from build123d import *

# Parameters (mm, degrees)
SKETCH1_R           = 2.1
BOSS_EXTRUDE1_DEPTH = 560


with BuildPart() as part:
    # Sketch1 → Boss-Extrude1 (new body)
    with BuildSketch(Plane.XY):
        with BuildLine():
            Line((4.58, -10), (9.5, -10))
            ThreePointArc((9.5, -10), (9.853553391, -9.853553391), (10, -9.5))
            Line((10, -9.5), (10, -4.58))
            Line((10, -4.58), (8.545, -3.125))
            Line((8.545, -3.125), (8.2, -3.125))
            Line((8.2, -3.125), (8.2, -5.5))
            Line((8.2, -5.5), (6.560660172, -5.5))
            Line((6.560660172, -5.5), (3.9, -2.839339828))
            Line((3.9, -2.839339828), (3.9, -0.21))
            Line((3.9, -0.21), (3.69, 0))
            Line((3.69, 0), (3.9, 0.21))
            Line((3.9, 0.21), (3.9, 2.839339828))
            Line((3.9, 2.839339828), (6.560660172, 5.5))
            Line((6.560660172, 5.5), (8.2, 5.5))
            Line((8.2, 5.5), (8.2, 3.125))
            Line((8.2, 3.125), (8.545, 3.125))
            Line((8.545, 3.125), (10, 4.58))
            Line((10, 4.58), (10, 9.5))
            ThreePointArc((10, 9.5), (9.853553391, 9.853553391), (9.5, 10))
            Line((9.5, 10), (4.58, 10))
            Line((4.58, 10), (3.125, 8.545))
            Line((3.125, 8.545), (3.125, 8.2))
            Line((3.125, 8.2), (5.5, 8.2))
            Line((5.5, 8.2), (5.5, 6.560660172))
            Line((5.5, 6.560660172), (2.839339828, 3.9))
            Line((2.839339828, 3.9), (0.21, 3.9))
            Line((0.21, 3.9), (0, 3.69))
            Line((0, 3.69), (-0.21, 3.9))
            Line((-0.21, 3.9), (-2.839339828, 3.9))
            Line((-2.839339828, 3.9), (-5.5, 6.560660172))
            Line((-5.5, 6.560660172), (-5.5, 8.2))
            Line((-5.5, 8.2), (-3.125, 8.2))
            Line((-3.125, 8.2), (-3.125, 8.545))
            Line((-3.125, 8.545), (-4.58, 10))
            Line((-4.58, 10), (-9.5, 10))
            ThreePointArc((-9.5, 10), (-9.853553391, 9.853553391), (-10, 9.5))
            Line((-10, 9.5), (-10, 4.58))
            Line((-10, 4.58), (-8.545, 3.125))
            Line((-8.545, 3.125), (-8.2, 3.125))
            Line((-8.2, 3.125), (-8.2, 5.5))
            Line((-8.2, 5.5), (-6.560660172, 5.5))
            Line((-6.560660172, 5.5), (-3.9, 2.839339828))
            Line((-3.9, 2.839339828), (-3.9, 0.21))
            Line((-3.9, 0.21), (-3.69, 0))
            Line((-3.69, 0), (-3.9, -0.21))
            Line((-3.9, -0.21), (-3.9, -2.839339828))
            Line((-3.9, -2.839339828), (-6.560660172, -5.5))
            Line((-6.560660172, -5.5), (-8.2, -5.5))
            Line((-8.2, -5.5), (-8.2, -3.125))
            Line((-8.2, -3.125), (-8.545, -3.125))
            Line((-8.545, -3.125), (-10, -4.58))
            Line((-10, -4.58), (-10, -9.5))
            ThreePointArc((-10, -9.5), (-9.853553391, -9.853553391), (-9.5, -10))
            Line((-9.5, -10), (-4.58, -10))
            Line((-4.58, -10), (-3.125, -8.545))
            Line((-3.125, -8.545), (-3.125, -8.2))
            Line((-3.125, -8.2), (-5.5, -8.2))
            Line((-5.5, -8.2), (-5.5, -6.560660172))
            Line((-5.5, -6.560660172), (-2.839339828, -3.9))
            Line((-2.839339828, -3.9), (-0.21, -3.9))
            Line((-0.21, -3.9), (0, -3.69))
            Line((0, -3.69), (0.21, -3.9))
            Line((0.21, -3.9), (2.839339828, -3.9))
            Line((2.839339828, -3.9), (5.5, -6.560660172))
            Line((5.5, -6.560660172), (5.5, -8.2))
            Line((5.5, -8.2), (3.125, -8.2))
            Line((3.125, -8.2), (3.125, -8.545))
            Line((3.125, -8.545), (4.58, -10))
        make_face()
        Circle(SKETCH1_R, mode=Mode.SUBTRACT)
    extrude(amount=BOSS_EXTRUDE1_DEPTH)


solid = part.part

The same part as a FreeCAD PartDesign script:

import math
import FreeCAD as App
import Part
import Sketcher
from FreeCAD import Vector
Q = App.Units.Quantity

doc = App.newDocument("Part")
body = doc.addObject("PartDesign::Body", "Body")

# Sketch on XY plane
sketch1 = body.newObject("Sketcher::SketchObject", "Sketch")
sketch1.AttachmentSupport = (doc.getObject("XY_Plane"), [""])
sketch1.MapMode = "FlatFace"
sketch1.addGeometry([
    Part.LineSegment(Vector(4.58, -10, 0), Vector(9.5, -10, 0)),  # 0
    Part.ArcOfCircle(Part.Circle(Vector(9.5, -9.5, 0), Vector(0, 0, 1), 0.5), math.radians(-90), math.radians(0)),  # 1
    Part.LineSegment(Vector(10, -9.5, 0), Vector(10, -4.58, 0)),  # 2
    Part.LineSegment(Vector(10, -4.58, 0), Vector(8.54, -3.12, 0)),  # 3
    Part.LineSegment(Vector(8.54, -3.12, 0), Vector(8.2, -3.12, 0)),  # 4
    Part.LineSegment(Vector(8.2, -3.12, 0), Vector(8.2, -5.5, 0)),  # 5
    Part.LineSegment(Vector(8.2, -5.5, 0), Vector(6.56, -5.5, 0)),  # 6
    Part.LineSegment(Vector(6.56, -5.5, 0), Vector(3.9, -2.84, 0)),  # 7
    Part.LineSegment(Vector(3.9, -2.84, 0), Vector(3.9, -0.21, 0)),  # 8
    Part.LineSegment(Vector(3.9, -0.21, 0), Vector(3.69, 0, 0)),  # 9
    Part.LineSegment(Vector(3.69, 0, 0), Vector(3.9, 0.21, 0)),  # 10
    Part.LineSegment(Vector(3.9, 0.21, 0), Vector(3.9, 2.84, 0)),  # 11
    Part.LineSegment(Vector(3.9, 2.84, 0), Vector(6.56, 5.5, 0)),  # 12
    Part.LineSegment(Vector(6.56, 5.5, 0), Vector(8.2, 5.5, 0)),  # 13
    Part.LineSegment(Vector(8.2, 5.5, 0), Vector(8.2, 3.12, 0)),  # 14
    Part.LineSegment(Vector(8.2, 3.12, 0), Vector(8.54, 3.12, 0)),  # 15
    Part.LineSegment(Vector(8.54, 3.12, 0), Vector(10, 4.58, 0)),  # 16
    Part.LineSegment(Vector(10, 4.58, 0), Vector(10, 9.5, 0)),  # 17
    Part.ArcOfCircle(Part.Circle(Vector(9.5, 9.5, 0), Vector(0, 0, 1), 0.5), math.radians(0), math.radians(90)),  # 18
    Part.LineSegment(Vector(9.5, 10, 0), Vector(4.58, 10, 0)),  # 19
    Part.LineSegment(Vector(4.58, 10, 0), Vector(3.12, 8.54, 0)),  # 20
    Part.LineSegment(Vector(3.12, 8.54, 0), Vector(3.12, 8.2, 0)),  # 21
    Part.LineSegment(Vector(3.12, 8.2, 0), Vector(5.5, 8.2, 0)),  # 22
    Part.LineSegment(Vector(5.5, 8.2, 0), Vector(5.5, 6.56, 0)),  # 23
    Part.LineSegment(Vector(5.5, 6.56, 0), Vector(2.84, 3.9, 0)),  # 24
    Part.LineSegment(Vector(2.84, 3.9, 0), Vector(0.21, 3.9, 0)),  # 25
    Part.LineSegment(Vector(0.21, 3.9, 0), Vector(0, 3.69, 0)),  # 26
    Part.LineSegment(Vector(0, 3.69, 0), Vector(-0.21, 3.9, 0)),  # 27
    Part.LineSegment(Vector(-0.21, 3.9, 0), Vector(-2.84, 3.9, 0)),  # 28
    Part.LineSegment(Vector(-2.84, 3.9, 0), Vector(-5.5, 6.56, 0)),  # 29
    Part.LineSegment(Vector(-5.5, 6.56, 0), Vector(-5.5, 8.2, 0)),  # 30
    Part.LineSegment(Vector(-5.5, 8.2, 0), Vector(-3.12, 8.2, 0)),  # 31
    Part.LineSegment(Vector(-3.12, 8.2, 0), Vector(-3.12, 8.54, 0)),  # 32
    Part.LineSegment(Vector(-3.12, 8.54, 0), Vector(-4.58, 10, 0)),  # 33
    Part.LineSegment(Vector(-4.58, 10, 0), Vector(-9.5, 10, 0)),  # 34
    Part.ArcOfCircle(Part.Circle(Vector(-9.5, 9.5, 0), Vector(0, 0, 1), 0.5), math.radians(90), math.radians(180)),  # 35
    Part.LineSegment(Vector(-10, 9.5, 0), Vector(-10, 4.58, 0)),  # 36
    Part.LineSegment(Vector(-10, 4.58, 0), Vector(-8.54, 3.12, 0)),  # 37
    Part.LineSegment(Vector(-8.54, 3.12, 0), Vector(-8.2, 3.12, 0)),  # 38
    Part.LineSegment(Vector(-8.2, 3.12, 0), Vector(-8.2, 5.5, 0)),  # 39
    Part.LineSegment(Vector(-8.2, 5.5, 0), Vector(-6.56, 5.5, 0)),  # 40
    Part.LineSegment(Vector(-6.56, 5.5, 0), Vector(-3.9, 2.84, 0)),  # 41
    Part.LineSegment(Vector(-3.9, 2.84, 0), Vector(-3.9, 0.21, 0)),  # 42
    Part.LineSegment(Vector(-3.9, 0.21, 0), Vector(-3.69, 0, 0)),  # 43
    Part.LineSegment(Vector(-3.69, 0, 0), Vector(-3.9, -0.21, 0)),  # 44
    Part.LineSegment(Vector(-3.9, -0.21, 0), Vector(-3.9, -2.84, 0)),  # 45
    Part.LineSegment(Vector(-3.9, -2.84, 0), Vector(-6.56, -5.5, 0)),  # 46
    Part.LineSegment(Vector(-6.56, -5.5, 0), Vector(-8.2, -5.5, 0)),  # 47
    Part.LineSegment(Vector(-8.2, -5.5, 0), Vector(-8.2, -3.12, 0)),  # 48
    Part.LineSegment(Vector(-8.2, -3.12, 0), Vector(-8.54, -3.12, 0)),  # 49
    Part.LineSegment(Vector(-8.54, -3.12, 0), Vector(-10, -4.58, 0)),  # 50
    Part.LineSegment(Vector(-10, -4.58, 0), Vector(-10, -9.5, 0)),  # 51
    Part.ArcOfCircle(Part.Circle(Vector(-9.5, -9.5, 0), Vector(0, 0, 1), 0.5), math.radians(180), math.radians(270)),  # 52
    Part.LineSegment(Vector(-9.5, -10, 0), Vector(-4.58, -10, 0)),  # 53
    Part.LineSegment(Vector(-4.58, -10, 0), Vector(-3.12, -8.54, 0)),  # 54
    Part.LineSegment(Vector(-3.12, -8.54, 0), Vector(-3.12, -8.2, 0)),  # 55
    Part.LineSegment(Vector(-3.12, -8.2, 0), Vector(-5.5, -8.2, 0)),  # 56
    Part.LineSegment(Vector(-5.5, -8.2, 0), Vector(-5.5, -6.56, 0)),  # 57
    Part.LineSegment(Vector(-5.5, -6.56, 0), Vector(-2.84, -3.9, 0)),  # 58
    Part.LineSegment(Vector(-2.84, -3.9, 0), Vector(-0.21, -3.9, 0)),  # 59
    Part.LineSegment(Vector(-0.21, -3.9, 0), Vector(0, -3.69, 0)),  # 60
    Part.LineSegment(Vector(0, -3.69, 0), Vector(0.21, -3.9, 0)),  # 61
    Part.LineSegment(Vector(0.21, -3.9, 0), Vector(2.84, -3.9, 0)),  # 62
    Part.LineSegment(Vector(2.84, -3.9, 0), Vector(5.5, -6.56, 0)),  # 63
    Part.LineSegment(Vector(5.5, -6.56, 0), Vector(5.5, -8.2, 0)),  # 64
    Part.LineSegment(Vector(5.5, -8.2, 0), Vector(3.12, -8.2, 0)),  # 65
    Part.LineSegment(Vector(3.12, -8.2, 0), Vector(3.12, -8.54, 0)),  # 66
    Part.LineSegment(Vector(3.12, -8.54, 0), Vector(4.58, -10, 0)),  # 67
    Part.Circle(Vector(0, 0, 0), Vector(0, 0, 1), 2.1),  # 68
], False)
sketch1.addConstraint([
    Sketcher.Constraint("Tangent", 0, 2, 1, 1),
    Sketcher.Constraint("Tangent", 1, 2, 2, 1),
    Sketcher.Constraint("Coincident", 2, 2, 3, 1),
    Sketcher.Constraint("Coincident", 3, 2, 4, 1),
    Sketcher.Constraint("Coincident", 4, 2, 5, 1),
    Sketcher.Constraint("Coincident", 5, 2, 6, 1),
    Sketcher.Constraint("Coincident", 6, 2, 7, 1),
    Sketcher.Constraint("Coincident", 7, 2, 8, 1),
    Sketcher.Constraint("Coincident", 8, 2, 9, 1),
    Sketcher.Constraint("Coincident", 9, 2, 10, 1),
    Sketcher.Constraint("Coincident", 10, 2, 11, 1),
    Sketcher.Constraint("Coincident", 11, 2, 12, 1),
    Sketcher.Constraint("Coincident", 12, 2, 13, 1),
    Sketcher.Constraint("Coincident", 13, 2, 14, 1),
    Sketcher.Constraint("Coincident", 14, 2, 15, 1),
    Sketcher.Constraint("Coincident", 15, 2, 16, 1),
    Sketcher.Constraint("Coincident", 16, 2, 17, 1),
    Sketcher.Constraint("Tangent", 17, 2, 18, 1),
    Sketcher.Constraint("Tangent", 18, 2, 19, 1),
    Sketcher.Constraint("Coincident", 19, 2, 20, 1),
    Sketcher.Constraint("Coincident", 20, 2, 21, 1),
    Sketcher.Constraint("Coincident", 21, 2, 22, 1),
    Sketcher.Constraint("Coincident", 22, 2, 23, 1),
    Sketcher.Constraint("Coincident", 23, 2, 24, 1),
    Sketcher.Constraint("Coincident", 24, 2, 25, 1),
    Sketcher.Constraint("Coincident", 25, 2, 26, 1),
    Sketcher.Constraint("Coincident", 26, 2, 27, 1),
    Sketcher.Constraint("Coincident", 27, 2, 28, 1),
    Sketcher.Constraint("Coincident", 28, 2, 29, 1),
    Sketcher.Constraint("Coincident", 29, 2, 30, 1),
    Sketcher.Constraint("Coincident", 30, 2, 31, 1),
    Sketcher.Constraint("Coincident", 31, 2, 32, 1),
    Sketcher.Constraint("Coincident", 32, 2, 33, 1),
    Sketcher.Constraint("Coincident", 33, 2, 34, 1),
    Sketcher.Constraint("Tangent", 34, 2, 35, 1),
    Sketcher.Constraint("Tangent", 35, 2, 36, 1),
    Sketcher.Constraint("Coincident", 36, 2, 37, 1),
    Sketcher.Constraint("Coincident", 37, 2, 38, 1),
    Sketcher.Constraint("Coincident", 38, 2, 39, 1),
    Sketcher.Constraint("Coincident", 39, 2, 40, 1),
    Sketcher.Constraint("Coincident", 40, 2, 41, 1),
    Sketcher.Constraint("Coincident", 41, 2, 42, 1),
    Sketcher.Constraint("Coincident", 42, 2, 43, 1),
    Sketcher.Constraint("Coincident", 43, 2, 44, 1),
    Sketcher.Constraint("Coincident", 44, 2, 45, 1),
    Sketcher.Constraint("Coincident", 45, 2, 46, 1),
    Sketcher.Constraint("Coincident", 46, 2, 47, 1),
    Sketcher.Constraint("Coincident", 47, 2, 48, 1),
    Sketcher.Constraint("Coincident", 48, 2, 49, 1),
    Sketcher.Constraint("Coincident", 49, 2, 50, 1),
    Sketcher.Constraint("Coincident", 50, 2, 51, 1),
    Sketcher.Constraint("Tangent", 51, 2, 52, 1),
    Sketcher.Constraint("Tangent", 52, 2, 53, 1),
    Sketcher.Constraint("Coincident", 53, 2, 54, 1),
    Sketcher.Constraint("Coincident", 54, 2, 55, 1),
    Sketcher.Constraint("Coincident", 55, 2, 56, 1),
    Sketcher.Constraint("Coincident", 56, 2, 57, 1),
    Sketcher.Constraint("Coincident", 57, 2, 58, 1),
    Sketcher.Constraint("Coincident", 58, 2, 59, 1),
    Sketcher.Constraint("Coincident", 59, 2, 60, 1),
    Sketcher.Constraint("Coincident", 60, 2, 61, 1),
    Sketcher.Constraint("Coincident", 61, 2, 62, 1),
    Sketcher.Constraint("Coincident", 62, 2, 63, 1),
    Sketcher.Constraint("Coincident", 63, 2, 64, 1),
    Sketcher.Constraint("Coincident", 64, 2, 65, 1),
    Sketcher.Constraint("Coincident", 65, 2, 66, 1),
    Sketcher.Constraint("Coincident", 66, 2, 67, 1),
    Sketcher.Constraint("Coincident", 67, 2, 0, 1),
    Sketcher.Constraint("Horizontal", 0),
    Sketcher.Constraint("Vertical", 2),
    Sketcher.Constraint("Horizontal", 4),
    Sketcher.Constraint("Vertical", 5),
    Sketcher.Constraint("Horizontal", 6),
    Sketcher.Constraint("Vertical", 8),
    Sketcher.Constraint("Vertical", 11),
    Sketcher.Constraint("Horizontal", 13),
    Sketcher.Constraint("Vertical", 14),
    Sketcher.Constraint("Horizontal", 15),
    Sketcher.Constraint("Vertical", 17),
    Sketcher.Constraint("Horizontal", 19),
    Sketcher.Constraint("Vertical", 21),
    Sketcher.Constraint("Horizontal", 22),
    Sketcher.Constraint("Vertical", 23),
    Sketcher.Constraint("Horizontal", 25),
    Sketcher.Constraint("Horizontal", 28),
    Sketcher.Constraint("Vertical", 30),
    Sketcher.Constraint("Horizontal", 31),
    Sketcher.Constraint("Vertical", 32),
    Sketcher.Constraint("Horizontal", 34),
    Sketcher.Constraint("Vertical", 36),
    Sketcher.Constraint("Horizontal", 38),
    Sketcher.Constraint("Vertical", 39),
    Sketcher.Constraint("Horizontal", 40),
    Sketcher.Constraint("Vertical", 42),
    Sketcher.Constraint("Vertical", 45),
    Sketcher.Constraint("Horizontal", 47),
    Sketcher.Constraint("Vertical", 48),
    Sketcher.Constraint("Horizontal", 49),
    Sketcher.Constraint("Vertical", 51),
    Sketcher.Constraint("Horizontal", 53),
    Sketcher.Constraint("Vertical", 55),
    Sketcher.Constraint("Horizontal", 56),
    Sketcher.Constraint("Vertical", 57),
    Sketcher.Constraint("Horizontal", 59),
    Sketcher.Constraint("Horizontal", 62),
    Sketcher.Constraint("Vertical", 64),
    Sketcher.Constraint("Horizontal", 65),
    Sketcher.Constraint("Vertical", 66),
    Sketcher.Constraint("Coincident", 68, 3, -1, 1),
    Sketcher.Constraint("Equal", 1, 18),
    Sketcher.Constraint("Equal", 18, 35),
    Sketcher.Constraint("Equal", 35, 52),
    Sketcher.Constraint("Symmetric", 1, 3, 35, 3, -1, 1),
    Sketcher.Constraint("Symmetric", 18, 3, 52, 3, -1, 1),
    Sketcher.Constraint("Symmetric", 3, 2, 37, 2, -1, 1),
    Sketcher.Constraint("Symmetric", 5, 2, 39, 2, -1, 1),
    Sketcher.Constraint("Symmetric", 7, 2, 41, 2, -1, 1),
    Sketcher.Constraint("Symmetric", 9, 2, 43, 2, -1, 1),
    Sketcher.Constraint("Symmetric", 10, 2, 44, 2, -1, 1),
    Sketcher.Constraint("Symmetric", 12, 2, 46, 2, -1, 1),
    Sketcher.Constraint("Symmetric", 14, 2, 48, 2, -1, 1),
    Sketcher.Constraint("Symmetric", 20, 2, 54, 2, -1, 1),
    Sketcher.Constraint("Symmetric", 22, 2, 56, 2, -1, 1),
    Sketcher.Constraint("Symmetric", 24, 2, 58, 2, -1, 1),
    Sketcher.Constraint("Symmetric", 26, 2, 60, 2, -1, 1),
    Sketcher.Constraint("Symmetric", 27, 2, 61, 2, -1, 1),
    Sketcher.Constraint("Symmetric", 29, 2, 63, 2, -1, 1),
    Sketcher.Constraint("Symmetric", 31, 2, 65, 2, -1, 1),
    Sketcher.Constraint("Symmetric", 18, 3, 35, 3, -2),
    Sketcher.Constraint("Symmetric", 25, 2, 27, 2, -2),
    Sketcher.Constraint("Symmetric", 23, 2, 29, 2, -2),
    Sketcher.Constraint("Symmetric", 21, 2, 31, 2, -2),
    Sketcher.Constraint("Symmetric", 15, 2, 37, 2, -2),
    Sketcher.Constraint("Symmetric", 13, 2, 39, 2, -2),
    Sketcher.Constraint("Symmetric", 11, 2, 41, 2, -2),
    Sketcher.Constraint("PointOnObject", 9, 2, -1),
    Sketcher.Constraint("PointOnObject", 26, 2, -2),
    Sketcher.Constraint("Parallel", 3, 7),
    Sketcher.Constraint("Parallel", 7, 9),
    Sketcher.Constraint("Perpendicular", 9, 10),
    Sketcher.Constraint("Parallel", 10, 12),
    Sketcher.Constraint("Parallel", 12, 16),
    Sketcher.Constraint("Parallel", 16, 20),
    Sketcher.Constraint("Parallel", 20, 24),
    Sketcher.Constraint("Parallel", 24, 26),
    Sketcher.Constraint("Perpendicular", 26, 27),
    Sketcher.Constraint("Parallel", 27, 29),
    Sketcher.Constraint("Parallel", 29, 33),
    Sketcher.Constraint("Parallel", 33, 37),
    Sketcher.Constraint("Parallel", 37, 41),
    Sketcher.Constraint("Parallel", 41, 43),
    Sketcher.Constraint("Parallel", 44, 46),
    Sketcher.Constraint("Parallel", 46, 50),
    Sketcher.Constraint("Parallel", 50, 54),
    Sketcher.Constraint("Parallel", 54, 58),
    Sketcher.Constraint("Parallel", 58, 60),
    Sketcher.Constraint("Parallel", 61, 63),
    Sketcher.Constraint("Parallel", 63, 67),
    Sketcher.Constraint("Horizontal", 20, 2, 32, 2),
    Sketcher.Constraint("Horizontal", 2, 2, 50, 2),
    Sketcher.Constraint("Horizontal", 54, 2, 66, 2),
    Sketcher.Constraint("Equal", 53, 2),
    Sketcher.Constraint("Equal", 65, 5),
    Sketcher.Constraint("Equal", 62, 8),
    Sketcher.Constraint("Equal", 49, 21),
    Sketcher.Constraint("Equal", 47, 23),
    Sketcher.Constraint("Equal", 16, 20),
    Sketcher.Constraint("Equal", 12, 24),
    Sketcher.Constraint("Equal", 10, 26),
    Sketcher.Constraint("Diameter", 68, Q("4.2 mm")),
    Sketcher.Constraint("Radius", 1, Q("0.5 mm")),
    Sketcher.Constraint("DistanceY", 0, 2, -1, 1, Q("10 mm")),
    Sketcher.Constraint("DistanceX", 0, 1, 0, 2, Q("4.92 mm")),
    Sketcher.Constraint("DistanceX", -1, 1, 4, 2, Q("8.2 mm")),
    Sketcher.Constraint("DistanceY", 5, 2, -1, 1, Q("5.5 mm")),
    Sketcher.Constraint("DistanceX", -1, 1, 7, 2, Q("3.9 mm")),
    Sketcher.Constraint("DistanceX", 4, 2, 4, 1, Q("0.345 mm")),
    Sketcher.Constraint("DistanceY", 8, 2, -1, 1, Q("0.21 mm")),
    Sketcher.Constraint("DistanceX", 6, 2, 6, 1, Q("1.63934 mm")),
])
pad1 = body.newObject("PartDesign::Pad", "Pad")
pad1.Profile = sketch1
pad1.Length = 560

doc.recompute()
